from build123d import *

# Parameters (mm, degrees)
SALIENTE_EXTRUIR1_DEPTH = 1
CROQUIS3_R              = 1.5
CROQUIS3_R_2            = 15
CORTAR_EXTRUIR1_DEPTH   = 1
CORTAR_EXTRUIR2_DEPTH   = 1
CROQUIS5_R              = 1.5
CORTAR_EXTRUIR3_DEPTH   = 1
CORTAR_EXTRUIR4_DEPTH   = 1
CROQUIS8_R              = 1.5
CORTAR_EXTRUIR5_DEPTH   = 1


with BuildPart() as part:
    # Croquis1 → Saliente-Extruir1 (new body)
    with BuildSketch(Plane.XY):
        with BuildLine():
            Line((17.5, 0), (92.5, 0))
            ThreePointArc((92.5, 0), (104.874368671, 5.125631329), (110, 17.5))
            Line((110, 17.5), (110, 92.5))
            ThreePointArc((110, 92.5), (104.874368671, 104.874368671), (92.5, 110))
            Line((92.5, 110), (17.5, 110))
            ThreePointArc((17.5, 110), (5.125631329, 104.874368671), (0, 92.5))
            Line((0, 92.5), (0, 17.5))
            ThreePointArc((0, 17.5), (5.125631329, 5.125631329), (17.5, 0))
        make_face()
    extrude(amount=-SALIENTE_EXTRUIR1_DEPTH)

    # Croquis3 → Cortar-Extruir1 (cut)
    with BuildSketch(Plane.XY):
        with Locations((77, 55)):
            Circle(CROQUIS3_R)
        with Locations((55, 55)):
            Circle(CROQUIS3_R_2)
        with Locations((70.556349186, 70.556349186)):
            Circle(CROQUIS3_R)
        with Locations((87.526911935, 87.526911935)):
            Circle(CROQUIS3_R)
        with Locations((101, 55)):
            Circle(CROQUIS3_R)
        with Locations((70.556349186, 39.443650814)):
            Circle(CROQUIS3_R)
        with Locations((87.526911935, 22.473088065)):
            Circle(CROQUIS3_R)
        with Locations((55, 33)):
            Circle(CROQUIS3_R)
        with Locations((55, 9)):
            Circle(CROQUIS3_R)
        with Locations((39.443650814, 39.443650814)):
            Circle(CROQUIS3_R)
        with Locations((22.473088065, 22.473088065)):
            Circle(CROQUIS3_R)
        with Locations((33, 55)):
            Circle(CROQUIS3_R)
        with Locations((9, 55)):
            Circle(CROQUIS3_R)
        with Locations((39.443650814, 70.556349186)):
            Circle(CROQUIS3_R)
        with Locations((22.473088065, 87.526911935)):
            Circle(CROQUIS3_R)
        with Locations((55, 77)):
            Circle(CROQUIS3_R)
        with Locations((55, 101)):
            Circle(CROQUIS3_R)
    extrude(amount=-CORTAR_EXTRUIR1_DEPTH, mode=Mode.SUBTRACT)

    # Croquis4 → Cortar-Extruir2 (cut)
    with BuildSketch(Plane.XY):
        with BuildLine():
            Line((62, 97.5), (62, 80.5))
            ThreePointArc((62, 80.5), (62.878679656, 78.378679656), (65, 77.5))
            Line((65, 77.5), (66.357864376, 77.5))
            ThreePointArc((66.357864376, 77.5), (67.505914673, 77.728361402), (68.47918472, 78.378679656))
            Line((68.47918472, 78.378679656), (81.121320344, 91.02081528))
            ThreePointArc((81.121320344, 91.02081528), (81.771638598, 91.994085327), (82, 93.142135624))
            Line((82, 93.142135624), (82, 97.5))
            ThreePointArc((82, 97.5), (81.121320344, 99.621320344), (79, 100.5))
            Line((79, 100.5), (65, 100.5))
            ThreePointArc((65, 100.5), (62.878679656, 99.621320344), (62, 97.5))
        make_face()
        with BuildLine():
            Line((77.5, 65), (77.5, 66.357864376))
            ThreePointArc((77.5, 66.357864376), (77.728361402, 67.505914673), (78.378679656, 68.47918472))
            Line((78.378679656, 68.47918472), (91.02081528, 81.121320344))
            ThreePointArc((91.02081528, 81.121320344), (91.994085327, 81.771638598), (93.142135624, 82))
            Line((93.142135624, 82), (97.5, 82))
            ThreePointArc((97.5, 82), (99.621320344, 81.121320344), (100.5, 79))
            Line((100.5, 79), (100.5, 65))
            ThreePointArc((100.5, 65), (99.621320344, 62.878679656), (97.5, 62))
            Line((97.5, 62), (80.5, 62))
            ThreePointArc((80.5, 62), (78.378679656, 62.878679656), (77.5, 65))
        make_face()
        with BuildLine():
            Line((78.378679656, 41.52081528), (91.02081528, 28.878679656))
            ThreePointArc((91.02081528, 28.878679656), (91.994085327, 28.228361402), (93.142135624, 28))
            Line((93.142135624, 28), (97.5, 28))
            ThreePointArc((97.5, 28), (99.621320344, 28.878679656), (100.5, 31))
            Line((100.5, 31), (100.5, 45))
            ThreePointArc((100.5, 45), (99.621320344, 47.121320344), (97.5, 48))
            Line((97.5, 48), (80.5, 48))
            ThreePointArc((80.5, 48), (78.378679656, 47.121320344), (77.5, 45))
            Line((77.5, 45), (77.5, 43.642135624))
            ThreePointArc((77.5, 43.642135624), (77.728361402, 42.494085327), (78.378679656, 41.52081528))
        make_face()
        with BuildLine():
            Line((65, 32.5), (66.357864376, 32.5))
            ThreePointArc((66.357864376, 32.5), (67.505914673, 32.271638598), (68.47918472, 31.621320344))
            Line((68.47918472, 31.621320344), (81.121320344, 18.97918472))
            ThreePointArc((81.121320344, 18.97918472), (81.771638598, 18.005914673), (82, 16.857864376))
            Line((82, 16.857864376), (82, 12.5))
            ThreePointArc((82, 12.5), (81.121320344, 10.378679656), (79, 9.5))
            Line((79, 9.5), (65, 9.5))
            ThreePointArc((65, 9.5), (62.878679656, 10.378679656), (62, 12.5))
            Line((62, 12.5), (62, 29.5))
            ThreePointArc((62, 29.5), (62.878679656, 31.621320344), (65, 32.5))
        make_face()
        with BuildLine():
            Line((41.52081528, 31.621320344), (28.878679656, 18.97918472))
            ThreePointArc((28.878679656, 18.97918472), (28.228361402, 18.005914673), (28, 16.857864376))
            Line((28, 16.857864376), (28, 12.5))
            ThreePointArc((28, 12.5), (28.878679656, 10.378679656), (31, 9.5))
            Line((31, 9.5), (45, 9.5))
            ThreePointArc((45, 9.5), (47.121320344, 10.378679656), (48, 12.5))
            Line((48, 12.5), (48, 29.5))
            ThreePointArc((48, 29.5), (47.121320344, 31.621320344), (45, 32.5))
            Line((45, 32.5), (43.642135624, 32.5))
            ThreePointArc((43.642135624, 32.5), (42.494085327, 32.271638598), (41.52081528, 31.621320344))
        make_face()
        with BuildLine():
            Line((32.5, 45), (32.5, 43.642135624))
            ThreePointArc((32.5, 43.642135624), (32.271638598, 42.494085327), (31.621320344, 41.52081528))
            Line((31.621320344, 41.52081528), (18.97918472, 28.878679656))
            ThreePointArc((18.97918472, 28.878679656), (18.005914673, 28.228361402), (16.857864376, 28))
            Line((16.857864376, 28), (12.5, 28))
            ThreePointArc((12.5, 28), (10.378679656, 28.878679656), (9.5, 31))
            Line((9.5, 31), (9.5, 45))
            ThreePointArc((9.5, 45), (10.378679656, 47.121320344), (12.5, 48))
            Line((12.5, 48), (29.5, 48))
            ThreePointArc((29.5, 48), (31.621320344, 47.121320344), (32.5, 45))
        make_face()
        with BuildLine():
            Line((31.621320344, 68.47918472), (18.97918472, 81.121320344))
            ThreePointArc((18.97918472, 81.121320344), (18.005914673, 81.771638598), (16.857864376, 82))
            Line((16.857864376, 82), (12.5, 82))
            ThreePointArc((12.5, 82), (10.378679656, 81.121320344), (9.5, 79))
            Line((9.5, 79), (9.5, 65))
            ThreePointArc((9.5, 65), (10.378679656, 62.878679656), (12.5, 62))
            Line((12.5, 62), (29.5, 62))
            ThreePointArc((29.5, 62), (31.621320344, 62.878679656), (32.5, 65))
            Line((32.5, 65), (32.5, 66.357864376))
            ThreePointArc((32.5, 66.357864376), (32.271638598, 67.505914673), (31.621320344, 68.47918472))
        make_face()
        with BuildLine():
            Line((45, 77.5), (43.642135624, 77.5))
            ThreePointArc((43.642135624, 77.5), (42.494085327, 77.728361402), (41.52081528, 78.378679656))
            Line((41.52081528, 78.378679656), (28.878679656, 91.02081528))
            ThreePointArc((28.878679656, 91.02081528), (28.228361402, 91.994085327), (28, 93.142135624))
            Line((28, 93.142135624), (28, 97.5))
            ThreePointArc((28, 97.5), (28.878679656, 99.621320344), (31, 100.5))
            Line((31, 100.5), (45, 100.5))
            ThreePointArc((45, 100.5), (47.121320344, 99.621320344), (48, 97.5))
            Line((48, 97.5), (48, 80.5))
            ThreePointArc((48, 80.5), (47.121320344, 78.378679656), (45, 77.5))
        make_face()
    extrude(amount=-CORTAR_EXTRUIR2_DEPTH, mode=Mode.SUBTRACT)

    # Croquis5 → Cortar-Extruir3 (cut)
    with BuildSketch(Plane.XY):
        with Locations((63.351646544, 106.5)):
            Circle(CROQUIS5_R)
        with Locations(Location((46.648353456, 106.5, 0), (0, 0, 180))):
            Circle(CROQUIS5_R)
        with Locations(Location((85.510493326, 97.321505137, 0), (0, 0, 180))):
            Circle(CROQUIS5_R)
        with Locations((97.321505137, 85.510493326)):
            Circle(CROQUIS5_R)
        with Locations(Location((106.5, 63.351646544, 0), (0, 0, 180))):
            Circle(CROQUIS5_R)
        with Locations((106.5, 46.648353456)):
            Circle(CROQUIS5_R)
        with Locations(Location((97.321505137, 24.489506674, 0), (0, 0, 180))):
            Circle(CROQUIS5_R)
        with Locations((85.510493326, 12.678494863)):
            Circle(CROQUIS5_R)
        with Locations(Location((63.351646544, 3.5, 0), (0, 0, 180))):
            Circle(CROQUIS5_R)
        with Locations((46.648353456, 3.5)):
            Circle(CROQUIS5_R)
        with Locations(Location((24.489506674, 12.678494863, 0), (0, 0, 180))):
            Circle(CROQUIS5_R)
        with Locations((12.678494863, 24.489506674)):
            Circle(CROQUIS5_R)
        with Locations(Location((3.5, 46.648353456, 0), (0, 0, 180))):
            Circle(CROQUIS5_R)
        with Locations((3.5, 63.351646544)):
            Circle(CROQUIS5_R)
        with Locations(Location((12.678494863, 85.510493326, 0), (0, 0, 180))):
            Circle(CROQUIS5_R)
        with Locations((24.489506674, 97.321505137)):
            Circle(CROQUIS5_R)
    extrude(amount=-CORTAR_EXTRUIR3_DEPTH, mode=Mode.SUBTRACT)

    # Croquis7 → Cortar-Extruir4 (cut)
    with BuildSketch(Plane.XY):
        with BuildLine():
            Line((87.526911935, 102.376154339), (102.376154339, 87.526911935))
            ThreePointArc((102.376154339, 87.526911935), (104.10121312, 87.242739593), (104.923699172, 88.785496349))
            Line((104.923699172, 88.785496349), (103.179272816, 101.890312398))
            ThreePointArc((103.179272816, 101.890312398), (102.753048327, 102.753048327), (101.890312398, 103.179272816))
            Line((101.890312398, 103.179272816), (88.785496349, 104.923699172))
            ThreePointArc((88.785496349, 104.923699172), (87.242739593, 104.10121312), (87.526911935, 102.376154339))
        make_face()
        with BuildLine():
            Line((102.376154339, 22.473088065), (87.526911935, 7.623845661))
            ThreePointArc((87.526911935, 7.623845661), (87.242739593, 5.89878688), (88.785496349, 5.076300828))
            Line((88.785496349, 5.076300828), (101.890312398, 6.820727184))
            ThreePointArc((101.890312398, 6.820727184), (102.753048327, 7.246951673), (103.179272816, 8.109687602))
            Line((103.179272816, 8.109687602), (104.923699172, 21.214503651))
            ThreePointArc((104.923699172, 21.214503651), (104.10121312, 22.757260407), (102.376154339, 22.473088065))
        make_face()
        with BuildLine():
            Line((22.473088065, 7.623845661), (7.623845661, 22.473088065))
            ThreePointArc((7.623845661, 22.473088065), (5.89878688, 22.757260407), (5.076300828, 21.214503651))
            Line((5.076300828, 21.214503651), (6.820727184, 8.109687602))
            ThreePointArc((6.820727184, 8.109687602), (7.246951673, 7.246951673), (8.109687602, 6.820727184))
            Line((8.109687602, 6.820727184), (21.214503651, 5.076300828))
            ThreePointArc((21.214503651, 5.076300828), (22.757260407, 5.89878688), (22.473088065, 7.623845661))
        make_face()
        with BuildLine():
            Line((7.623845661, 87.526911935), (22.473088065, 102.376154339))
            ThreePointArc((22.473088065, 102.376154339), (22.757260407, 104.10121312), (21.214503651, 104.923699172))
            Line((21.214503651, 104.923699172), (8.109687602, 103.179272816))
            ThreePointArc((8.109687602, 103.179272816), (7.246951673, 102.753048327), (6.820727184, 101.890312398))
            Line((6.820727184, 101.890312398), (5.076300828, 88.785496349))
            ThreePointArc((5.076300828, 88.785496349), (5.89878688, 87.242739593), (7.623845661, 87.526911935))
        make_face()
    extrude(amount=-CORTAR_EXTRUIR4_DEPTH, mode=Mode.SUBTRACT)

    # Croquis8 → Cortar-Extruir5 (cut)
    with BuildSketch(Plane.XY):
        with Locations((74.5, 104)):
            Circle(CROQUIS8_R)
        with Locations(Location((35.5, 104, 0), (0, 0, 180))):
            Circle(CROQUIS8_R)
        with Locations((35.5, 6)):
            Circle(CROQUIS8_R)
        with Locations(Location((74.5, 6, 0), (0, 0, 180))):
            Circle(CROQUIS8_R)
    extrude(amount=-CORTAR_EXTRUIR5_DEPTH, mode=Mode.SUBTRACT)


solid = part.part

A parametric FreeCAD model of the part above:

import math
import FreeCAD as App
import Part
import Sketcher
Q = App.Units.Quantity

doc = App.newDocument("Part")
body = doc.addObject("PartDesign::Body", "Body")

sketch1 = body.newObject("Sketcher::SketchObject", "Sketch")
sketch1.AttachmentSupport = (doc.getObject("XY_Plane"), [""])
sketch1.MapMode = "FlatFace"
sketch1.addGeometry([
    Part.LineSegment(App.Vector(18, 0, 0), App.Vector(92, 0, 0)),
    Part.ArcOfCircle(Part.Circle(App.Vector(93, 17, 0), App.Vector(0, 0, 1), 17), math.radians(-90), math.radians(0)),
    Part.LineSegment(App.Vector(110, 18, 0), App.Vector(110, 92, 0)),
    Part.ArcOfCircle(Part.Circle(App.Vector(93, 93, 0), App.Vector(0, 0, 1), 17), math.radians(0), math.radians(90)),
    Part.LineSegment(App.Vector(92, 110, 0), App.Vector(18, 110, 0)),
    Part.ArcOfCircle(Part.Circle(App.Vector(17, 93, 0), App.Vector(0, 0, 1), 17), math.radians(90), math.radians(180)),
    Part.LineSegment(App.Vector(0, 92, 0), App.Vector(0, 18, 0)),
    Part.ArcOfCircle(Part.Circle(App.Vector(17, 17, 0), App.Vector(0, 0, 1), 17), math.radians(180), math.radians(270)),
], False)
sketch1.addConstraint([
    Sketcher.Constraint("Tangent", 0, 2, 1, 1),
    Sketcher.Constraint("Tangent", 1, 2, 2, 1),
    Sketcher.Constraint("Tangent", 2, 2, 3, 1),
    Sketcher.Constraint("Tangent", 3, 2, 4, 1),
    Sketcher.Constraint("Tangent", 4, 2, 5, 1),
    Sketcher.Constraint("Tangent", 5, 2, 6, 1),
    Sketcher.Constraint("Tangent", 6, 2, 7, 1),
    Sketcher.Constraint("Tangent", 7, 2, 0, 1),
    Sketcher.Constraint("Horizontal", 0),
    Sketcher.Constraint("Vertical", 2),
    Sketcher.Constraint("Horizontal", 4),
    Sketcher.Constraint("Vertical", 6),
    Sketcher.Constraint("Equal", 1, 3),
    Sketcher.Constraint("Equal", 3, 5),
    Sketcher.Constraint("Equal", 5, 7),
    Sketcher.Constraint("PointOnObject", 0, 2, -1),
    Sketcher.Constraint("PointOnObject", 5, 2, -2),
    Sketcher.Constraint("Equal", 4, 2),
    Sketcher.Constraint("Radius", 1, Q("17.5 mm")),
    Sketcher.Constraint("DistanceX", 0, 1, 0, 2, Q("75 mm")),
])
pad1 = body.newObject("PartDesign::Pad", "Pad")
pad1.Profile = sketch1
pad1.Length = 1
pad1.Reversed = True

sketch2 = body.newObject("Sketcher::SketchObject", "Sketch001")
sketch2.AttachmentSupport = (doc.getObject("XY_Plane"), [""])
sketch2.MapMode = "FlatFace"
sketch2.addGeometry([
    Part.Circle(App.Vector(77, 55, 0), App.Vector(0, 0, 1), 1.5),
    Part.Circle(App.Vector(55, 55, 0), App.Vector(0, 0, 1), 15),
    Part.Circle(App.Vector(70.6, 70.6, 0), App.Vector(0, 0, 1), 1.5),
    Part.Circle(App.Vector(87.5, 87.5, 0), App.Vector(0, 0, 1), 1.5),
    Part.Circle(App.Vector(101, 55, 0), App.Vector(0, 0, 1), 1.5),
    Part.Circle(App.Vector(70.6, 39.4, 0), App.Vector(0, 0, 1), 1.5),
    Part.Circle(App.Vector(87.5, 22.5, 0), App.Vector(0, 0, 1), 1.5),
    Part.Circle(App.Vector(55, 33, 0), App.Vector(0, 0, 1), 1.5),
    Part.Circle(App.Vector(55, 9, 0), App.Vector(0, 0, 1), 1.5),
    Part.Circle(App.Vector(39.4, 39.4, 0), App.Vector(0, 0, 1), 1.5),
    Part.Circle(App.Vector(22.5, 22.5, 0), App.Vector(0, 0, 1), 1.5),
    Part.Circle(App.Vector(33, 55, 0), App.Vector(0, 0, 1), 1.5),
    Part.Circle(App.Vector(9, 55, 0), App.Vector(0, 0, 1), 1.5),
    Part.Circle(App.Vector(39.4, 70.6, 0), App.Vector(0, 0, 1), 1.5),
    Part.Circle(App.Vector(22.5, 87.5, 0), App.Vector(0, 0, 1), 1.5),
    Part.Circle(App.Vector(55, 77, 0), App.Vector(0, 0, 1), 1.5),
    Part.Circle(App.Vector(55, 101, 0), App.Vector(0, 0, 1), 1.5),
], False)
sketch2.addConstraint([
    Sketcher.Constraint("Equal", 0, 2),
    Sketcher.Constraint("Equal", 2, 3),
    Sketcher.Constraint("Equal", 3, 4),
    Sketcher.Constraint("Equal", 4, 5),
    Sketcher.Constraint("Equal", 5, 6),
    Sketcher.Constraint("Equal", 6, 7),
    Sketcher.Constraint("Equal", 7, 8),
    Sketcher.Constraint("Equal", 8, 9),
    Sketcher.Constraint("Equal", 9, 10),
    Sketcher.Constraint("Equal", 10, 11),
    Sketcher.Constraint("Equal", 11, 12),
    Sketcher.Constraint("Equal", 12, 13),
    Sketcher.Constraint("Equal", 13, 14),
    Sketcher.Constraint("Equal", 14, 15),
    Sketcher.Constraint("Equal", 15, 16),
    Sketcher.Constraint("Horizontal", 0, 3, 1, 3),
    Sketcher.Constraint("Horizontal", 1, 3, 4, 3),
    Sketcher.Constraint("Horizontal", 5, 3, 9, 3),
    Sketcher.Constraint("Horizontal", 6, 3, 10, 3),
    Sketcher.Constraint("Horizontal", 4, 3, 11, 3),
    Sketcher.Constraint("Horizontal", 11, 3, 12, 3),
    Sketcher.Constraint("Horizontal", 2, 3, 13, 3),
    Sketcher.Constraint("Horizontal", 3, 3, 14, 3),
    Sketcher.Constraint("Vertical", 2, 3, 5, 3),
    Sketcher.Constraint("Vertical", 3, 3, 6, 3),
    Sketcher.Constraint("Vertical", 1, 3, 7, 3),
    Sketcher.Constraint("Vertical", 7, 3, 8, 3),
    Sketcher.Constraint("Vertical", 9, 3, 13, 3),
    Sketcher.Constraint("Vertical", 10, 3, 14, 3),
    Sketcher.Constraint("Vertical", 8, 3, 15, 3),
    Sketcher.Constraint("Vertical", 15, 3, 16, 3),
    Sketcher.Constraint("Diameter", 0, Q("3 mm")),
    Sketcher.Constraint("Diameter", 1, Q("30 mm")),
    Sketcher.Constraint("DistanceX", -1, 1, 0, 3, Q("77 mm")),
    Sketcher.Constraint("DistanceY", -1, 1, 0, 3, Q("55 mm")),
    Sketcher.Constraint("DistanceX", -1, 1, 1, 3, Q("55 mm")),
    Sketcher.Constraint("DistanceX", -1, 1, 4, 3, Q("101 mm")),
    Sketcher.Constraint("DistanceY", -1, 1, 7, 3, Q("33 mm")),
    Sketcher.Constraint("DistanceY", -1, 1, 8, 3, Q("9 mm")),
    Sketcher.Constraint("DistanceX", -1, 1, 11, 3, Q("33 mm")),
    Sketcher.Constraint("DistanceX", -1, 1, 12, 3, Q("9 mm")),
    Sketcher.Constraint("DistanceY", -1, 1, 15, 3, Q("77 mm")),
    Sketcher.Constraint("DistanceY", -1, 1, 16, 3, Q("101 mm")),
    Sketcher.Constraint("DistanceY", 5, 3, 2, 3, Q("31.112698 mm")),
    Sketcher.Constraint("DistanceX", 9, 3, 5, 3, Q("31.112698 mm")),
    Sketcher.Constraint("DistanceX", -1, 1, 2, 3, Q("70.556349 mm")),
    Sketcher.Constraint("DistanceY", -1, 1, 2, 3, Q("70.556349 mm")),
    Sketcher.Constraint("DistanceX", -1, 1, 3, 3, Q("87.526912 mm")),
    Sketcher.Constraint("DistanceY", -1, 1, 3, 3, Q("87.526912 mm")),
    Sketcher.Constraint("DistanceY", -1, 1, 6, 3, Q("22.473088 mm")),
    Sketcher.Constraint("DistanceX", -1, 1, 10, 3, Q("22.473088 mm")),
])
pocket1 = body.newObject("PartDesign::Pocket", "Pocket")
pocket1.Profile = sketch2
pocket1.Length = 1

sketch3 = body.newObject("Sketcher::SketchObject", "Sketch002")
sketch3.AttachmentSupport = (doc.getObject("XY_Plane"), [""])
sketch3.MapMode = "FlatFace"
sketch3.addGeometry([
    Part.LineSegment(App.Vector(62, 97.5, 0), App.Vector(62, 80.5, 0)),
    Part.ArcOfCircle(Part.Circle(App.Vector(65, 80.5, 0), App.Vector(0, 0, 1), 3), math.radians(180), math.radians(270)),
    Part.LineSegment(App.Vector(65, 77.5, 0), App.Vector(66.4, 77.5, 0)),
    Part.ArcOfCircle(Part.Circle(App.Vector(66.4, 80.5, 0), App.Vector(0, 0, 1), 3), math.radians(-90), math.radians(-45)),
    Part.LineSegment(App.Vector(68.5, 78.4, 0), App.Vector(81.1, 91, 0)),
    Part.ArcOfCircle(Part.Circle(App.Vector(79, 93.1, 0), App.Vector(0, 0, 1), 3), math.radians(-45), math.radians(0)),
    Part.LineSegment(App.Vector(82, 93.1, 0), App.Vector(82, 97.5, 0)),
    Part.ArcOfCircle(Part.Circle(App.Vector(79, 97.5, 0), App.Vector(0, 0, 1), 3), math.radians(0), math.radians(90)),
    Part.LineSegment(App.Vector(79, 100.5, 0), App.Vector(65, 100.5, 0)),
    Part.ArcOfCircle(Part.Circle(App.Vector(65, 97.5, 0), App.Vector(0, 0, 1), 3), math.radians(90), math.radians(180)),
    Part.LineSegment(App.Vector(77.5, 66.4, 0), App.Vector(77.5, 65, 0)),
    Part.ArcOfCircle(Part.Circle(App.Vector(80.5, 65, 0), App.Vector(0, 0, 1), 3), math.radians(180), math.radians(270)),
    Part.LineSegment(App.Vector(80.5, 62, 0), App.Vector(97.5, 62, 0)),
    Part.ArcOfCircle(Part.Circle(App.Vector(97.5, 65, 0), App.Vector(0, 0, 1), 3), math.radians(-90), math.radians(0)),
    Part.LineSegment(App.Vector(100.5, 65, 0), App.Vector(100.5, 79, 0)),
    Part.ArcOfCircle(Part.Circle(App.Vector(97.5, 79, 0), App.Vector(0, 0, 1), 3), math.radians(0), math.radians(90)),
    Part.LineSegment(App.Vector(97.5, 82, 0), App.Vector(93.1, 82, 0)),
    Part.ArcOfCircle(Part.Circle(App.Vector(93.1, 79, 0), App.Vector(0, 0, 1), 3), math.radians(90), math.radians(135)),
    Part.LineSegment(App.Vector(91, 81.1, 0), App.Vector(78.4, 68.5, 0)),
    Part.ArcOfCircle(Part.Circle(App.Vector(80.5, 66.4, 0), App.Vector(0, 0, 1), 3), math.radians(135), math.radians(180)),
    Part.LineSegment(App.Vector(78.4, 41.5, 0), App.Vector(91, 28.9, 0)),
    Part.ArcOfCircle(Part.Circle(App.Vector(93.1, 31, 0), App.Vector(0, 0, 1), 3), math.radians(-135), math.radians(-90)),
    Part.LineSegment(App.Vector(93.1, 28, 0), App.Vector(97.5, 28, 0)),
    Part.ArcOfCircle(Part.Circle(App.Vector(97.5, 31, 0), App.Vector(0, 0, 1), 3), math.radians(-90), math.radians(0)),
    Part.LineSegment(App.Vector(100.5, 31, 0), App.Vector(100.5, 45, 0)),
    Part.ArcOfCircle(Part.Circle(App.Vector(97.5, 45, 0), App.Vector(0, 0, 1), 3), math.radians(0), math.radians(90)),
    Part.LineSegment(App.Vector(97.5, 48, 0), App.Vector(80.5, 48, 0)),
    Part.ArcOfCircle(Part.Circle(App.Vector(80.5, 45, 0), App.Vector(0, 0, 1), 3), math.radians(90), math.radians(180)),
    Part.LineSegment(App.Vector(77.5, 45, 0), App.Vector(77.5, 43.6, 0)),
    Part.ArcOfCircle(Part.Circle(App.Vector(80.5, 43.6, 0), App.Vector(0, 0, 1), 3), math.radians(180), math.radians(225)),
    Part.LineSegment(App.Vector(66.4, 32.5, 0), App.Vector(65, 32.5, 0)),
    Part.ArcOfCircle(Part.Circle(App.Vector(65, 29.5, 0), App.Vector(0, 0, 1), 3), math.radians(90), math.radians(180)),
    Part.LineSegment(App.Vector(62, 29.5, 0), App.Vector(62, 12.5, 0)),
    Part.ArcOfCircle(Part.Circle(App.Vector(65, 12.5, 0), App.Vector(0, 0, 1), 3), math.radians(180), math.radians(270)),
    Part.LineSegment(App.Vector(65, 9.5, 0), App.Vector(79, 9.5, 0)),
    Part.ArcOfCircle(Part.Circle(App.Vector(79, 12.5, 0), App.Vector(0, 0, 1), 3), math.radians(-90), math.radians(0)),
    Part.LineSegment(App.Vector(82, 12.5, 0), App.Vector(82, 16.9, 0)),
    Part.ArcOfCircle(Part.Circle(App.Vector(79, 16.9, 0), App.Vector(0, 0, 1), 3), math.radians(0), math.radians(45)),
    Part.LineSegment(App.Vector(81.1, 19, 0), App.Vector(68.5, 31.6, 0)),
    Part.ArcOfCircle(Part.Circle(App.Vector(66.4, 29.5, 0), App.Vector(0, 0, 1), 3), math.radians(45), math.radians(90)),
    Part.LineSegment(App.Vector(41.5, 31.6, 0), App.Vector(28.9, 19, 0)),
    Part.ArcOfCircle(Part.Circle(App.Vector(31, 16.9, 0), App.Vector(0, 0, 1), 3), math.radians(135), math.radians(180)),
    Part.LineSegment(App.Vector(28, 16.9, 0), App.Vector(28, 12.5, 0)),
    Part.ArcOfCircle(Part.Circle(App.Vector(31, 12.5, 0), App.Vector(0, 0, 1), 3), math.radians(180), math.radians(270)),
    Part.LineSegment(App.Vector(31, 9.5, 0), App.Vector(45, 9.5, 0)),
    Part.ArcOfCircle(Part.Circle(App.Vector(45, 12.5, 0), App.Vector(0, 0, 1), 3), math.radians(-90), math.radians(0)),
    Part.LineSegment(App.Vector(48, 12.5, 0), App.Vector(48, 29.5, 0)),
    Part.ArcOfCircle(Part.Circle(App.Vector(45, 29.5, 0), App.Vector(0, 0, 1), 3), math.radians(0), math.radians(90)),
    Part.LineSegment(App.Vector(45, 32.5, 0), App.Vector(43.6, 32.5, 0)),
    Part.ArcOfCircle(Part.Circle(App.Vector(43.6, 29.5, 0), App.Vector(0, 0, 1), 3), math.radians(90), math.radians(135)),
    Part.LineSegment(App.Vector(32.5, 43.6, 0), App.Vector(32.5, 45, 0)),
    Part.ArcOfCircle(Part.Circle(App.Vector(29.5, 45, 0), App.Vector(0, 0, 1), 3), math.radians(0), math.radians(90)),
    Part.LineSegment(App.Vector(29.5, 48, 0), App.Vector(12.5, 48, 0)),
    Part.ArcOfCircle(Part.Circle(App.Vector(12.5, 45, 0), App.Vector(0, 0, 1), 3), math.radians(90), math.radians(180)),
    Part.LineSegment(App.Vector(9.5, 45, 0), App.Vector(9.5, 31, 0)),
    Part.ArcOfCircle(Part.Circle(App.Vector(12.5, 31, 0), App.Vector(0, 0, 1), 3), math.radians(180), math.radians(270)),
    Part.LineSegment(App.Vector(12.5, 28, 0), App.Vector(16.9, 28, 0)),
    Part.ArcOfCircle(Part.Circle(App.Vector(16.9, 31, 0), App.Vector(0, 0, 1), 3), math.radians(-90), math.radians(-45)),
    Part.LineSegment(App.Vector(19, 28.9, 0), App.Vector(31.6, 41.5, 0)),
    Part.ArcOfCircle(Part.Circle(App.Vector(29.5, 43.6, 0), App.Vector(0, 0, 1), 3), math.radians(-45), math.radians(0)),
    Part.LineSegment(App.Vector(31.6, 68.5, 0), App.Vector(19, 81.1, 0)),
    Part.ArcOfCircle(Part.Circle(App.Vector(16.9, 79, 0), App.Vector(0, 0, 1), 3), math.radians(45), math.radians(90)),
    Part.LineSegment(App.Vector(16.9, 82, 0), App.Vector(12.5, 82, 0)),
    Part.ArcOfCircle(Part.Circle(App.Vector(12.5, 79, 0), App.Vector(0, 0, 1), 3), math.radians(90), math.radians(180)),
    Part.LineSegment(App.Vector(9.5, 79, 0), App.Vector(9.5, 65, 0)),
    Part.ArcOfCircle(Part.Circle(App.Vector(12.5, 65, 0), App.Vector(0, 0, 1), 3), math.radians(180), math.radians(270)),
    Part.LineSegment(App.Vector(12.5, 62, 0), App.Vector(29.5, 62, 0)),
    Part.ArcOfCircle(Part.Circle(App.Vector(29.5, 65, 0), App.Vector(0, 0, 1), 3), math.radians(-90), math.radians(0)),
    Part.LineSegment(App.Vector(32.5, 65, 0), App.Vector(32.5, 66.4, 0)),
    Part.ArcOfCircle(Part.Circle(App.Vector(29.5, 66.4, 0), App.Vector(0, 0, 1), 3), math.radians(0), math.radians(45)),
    Part.LineSegment(App.Vector(43.6, 77.5, 0), App.Vector(45, 77.5, 0)),
    Part.ArcOfCircle(Part.Circle(App.Vector(45, 80.5, 0), App.Vector(0, 0, 1), 3), math.radians(-90), math.radians(0)),
    Part.LineSegment(App.Vector(48, 80.5, 0), App.Vector(48, 97.5, 0)),
    Part.ArcOfCircle(Part.Circle(App.Vector(45, 97.5, 0), App.Vector(0, 0, 1), 3), math.radians(0), math.radians(90)),
    Part.LineSegment(App.Vector(45, 100.5, 0), App.Vector(31, 100.5, 0)),
    Part.ArcOfCircle(Part.Circle(App.Vector(31, 97.5, 0), App.Vector(0, 0, 1), 3), math.radians(90), math.radians(180)),
    Part.LineSegment(App.Vector(28, 97.5, 0), App.Vector(28, 93.1, 0)),
    Part.ArcOfCircle(Part.Circle(App.Vector(31, 93.1, 0), App.Vector(0, 0, 1), 3), math.radians(180), math.radians(225)),
    Part.LineSegment(App.Vector(28.9, 91, 0), App.Vector(41.5, 78.4, 0)),
    Part.ArcOfCircle(Part.Circle(App.Vector(43.6, 80.5, 0), App.Vector(0, 0, 1), 3), math.radians(-135), math.radians(-90)),
], False)
sketch3.addConstraint([
    Sketcher.Constraint("Tangent", 0, 2, 1, 1),
    Sketcher.Constraint("Tangent", 1, 2, 2, 1),
    Sketcher.Constraint("Tangent", 2, 2, 3, 1),
    Sketcher.Constraint("Tangent", 3, 2, 4, 1),
    Sketcher.Constraint("Tangent", 4, 2, 5, 1),
    Sketcher.Constraint("Tangent", 5, 2, 6, 1),
    Sketcher.Constraint("Tangent", 6, 2, 7, 1),
    Sketcher.Constraint("Tangent", 7, 2, 8, 1),
    Sketcher.Constraint("Tangent", 8, 2, 9, 1),
    Sketcher.Constraint("Tangent", 9, 2, 0, 1),
    Sketcher.Constraint("Tangent", 10, 2, 11, 1),
    Sketcher.Constraint("Tangent", 11, 2, 12, 1),
    Sketcher.Constraint("Tangent", 12, 2, 13, 1),
    Sketcher.Constraint("Tangent", 13, 2, 14, 1),
    Sketcher.Constraint("Tangent", 14, 2, 15, 1),
    Sketcher.Constraint("Tangent", 15, 2, 16, 1),
    Sketcher.Constraint("Tangent", 16, 2, 17, 1),
    Sketcher.Constraint("Tangent", 17, 2, 18, 1),
    Sketcher.Constraint("Tangent", 18, 2, 19, 1),
    Sketcher.Constraint("Tangent", 19, 2, 10, 1),
    Sketcher.Constraint("Tangent", 20, 2, 21, 1),
    Sketcher.Constraint("Tangent", 21, 2, 22, 1),
    Sketcher.Constraint("Tangent", 22, 2, 23, 1),
    Sketcher.Constraint("Tangent", 23, 2, 24, 1),
    Sketcher.Constraint("Tangent", 24, 2, 25, 1),
    Sketcher.Constraint("Tangent", 25, 2, 26, 1),
    Sketcher.Constraint("Tangent", 26, 2, 27, 1),
    Sketcher.Constraint("Tangent", 27, 2, 28, 1),
    Sketcher.Constraint("Tangent", 28, 2, 29, 1),
    Sketcher.Constraint("Tangent", 29, 2, 20, 1),
    Sketcher.Constraint("Tangent", 30, 2, 31, 1),
    Sketcher.Constraint("Tangent", 31, 2, 32, 1),
    Sketcher.Constraint("Tangent", 32, 2, 33, 1),
    Sketcher.Constraint("Tangent", 33, 2, 34, 1),
    Sketcher.Constraint("Tangent", 34, 2, 35, 1),
    Sketcher.Constraint("Tangent", 35, 2, 36, 1),
    Sketcher.Constraint("Tangent", 36, 2, 37, 1),
    Sketcher.Constraint("Tangent", 37, 2, 38, 1),
    Sketcher.Constraint("Tangent", 38, 2, 39, 1),
    Sketcher.Constraint("Tangent", 39, 2, 30, 1),
    Sketcher.Constraint("Tangent", 40, 2, 41, 1),
    Sketcher.Constraint("Tangent", 41, 2, 42, 1),
    Sketcher.Constraint("Tangent", 42, 2, 43, 1),
    Sketcher.Constraint("Tangent", 43, 2, 44, 1),
    Sketcher.Constraint("Tangent", 44, 2, 45, 1),
    Sketcher.Constraint("Tangent", 45, 2, 46, 1),
    Sketcher.Constraint("Tangent", 46, 2, 47, 1),
    Sketcher.Constraint("Tangent", 47, 2, 48, 1),
    Sketcher.Constraint("Tangent", 48, 2, 49, 1),
    Sketcher.Constraint("Tangent", 49, 2, 40, 1),
    Sketcher.Constraint("Tangent", 50, 2, 51, 1),
    Sketcher.Constraint("Tangent", 51, 2, 52, 1),
    Sketcher.Constraint("Tangent", 52, 2, 53, 1),
    Sketcher.Constraint("Tangent", 53, 2, 54, 1),
    Sketcher.Constraint("Tangent", 54, 2, 55, 1),
    Sketcher.Constraint("Tangent", 55, 2, 56, 1),
    Sketcher.Constraint("Tangent", 56, 2, 57, 1),
    Sketcher.Constraint("Tangent", 57, 2, 58, 1),
    Sketcher.Constraint("Tangent", 58, 2, 59, 1),
    Sketcher.Constraint("Tangent", 59, 2, 50, 1),
    Sketcher.Constraint("Tangent", 60, 2, 61, 1),
    Sketcher.Constraint("Tangent", 61, 2, 62, 1),
    Sketcher.Constraint("Tangent", 62, 2, 63, 1),
    Sketcher.Constraint("Tangent", 63, 2, 64, 1),
    Sketcher.Constraint("Tangent", 64, 2, 65, 1),
    Sketcher.Constraint("Tangent", 65, 2, 66, 1),
    Sketcher.Constraint("Tangent", 66, 2, 67, 1),
    Sketcher.Constraint("Tangent", 67, 2, 68, 1),
    Sketcher.Constraint("Tangent", 68, 2, 69, 1),
    Sketcher.Constraint("Tangent", 69, 2, 60, 1),
    Sketcher.Constraint("Tangent", 70, 2, 71, 1),
    Sketcher.Constraint("Tangent", 71, 2, 72, 1),
    Sketcher.Constraint("Tangent", 72, 2, 73, 1),
    Sketcher.Constraint("Tangent", 73, 2, 74, 1),
    Sketcher.Constraint("Tangent", 74, 2, 75, 1),
    Sketcher.Constraint("Tangent", 75, 2, 76, 1),
    Sketcher.Constraint("Tangent", 76, 2, 77, 1),
    Sketcher.Constraint("Tangent", 77, 2, 78, 1),
    Sketcher.Constraint("Tangent", 78, 2, 79, 1),
    Sketcher.Constraint("Tangent", 79, 2, 70, 1),
    Sketcher.Constraint("Vertical", 0),
    Sketcher.Constraint("Horizontal", 2),
    Sketcher.Constraint("Vertical", 6),
    Sketcher.Constraint("Horizontal", 8),
    Sketcher.Constraint("Vertical", 10),
    Sketcher.Constraint("Horizontal", 12),
    Sketcher.Constraint("Vertical", 14),
    Sketcher.Constraint("Horizontal", 16),
    Sketcher.Constraint("Horizontal", 22),
    Sketcher.Constraint("Vertical", 24),
    Sketcher.Constraint("Horizontal", 26),
    Sketcher.Constraint("Vertical", 28),
    Sketcher.Constraint("Horizontal", 30),
    Sketcher.Constraint("Vertical", 32),
    Sketcher.Constraint("Horizontal", 34),
    Sketcher.Constraint("Vertical", 36),
    Sketcher.Constraint("Vertical", 42),
    Sketcher.Constraint("Horizontal", 44),
    Sketcher.Constraint("Vertical", 46),
    Sketcher.Constraint("Horizontal", 48),
    Sketcher.Constraint("Vertical", 50),
    Sketcher.Constraint("Horizontal", 52),
    Sketcher.Constraint("Vertical", 54),
    Sketcher.Constraint("Horizontal", 56),
    Sketcher.Constraint("Horizontal", 62),
    Sketcher.Constraint("Vertical", 64),
    Sketcher.Constraint("Horizontal", 66),
    Sketcher.Constraint("Vertical", 68),
    Sketcher.Constraint("Horizontal", 70),
    Sketcher.Constraint("Vertical", 72),
    Sketcher.Constraint("Horizontal", 74),
    Sketcher.Constraint("Vertical", 76),
    Sketcher.Constraint("Equal", 1, 3),
    Sketcher.Constraint("Equal", 3, 5),
    Sketcher.Constraint("Equal", 5, 7),
    Sketcher.Constraint("Equal", 7, 9),
    Sketcher.Constraint("Equal", 9, 11),
    Sketcher.Constraint("Equal", 11, 13),
    Sketcher.Constraint("Equal", 13, 15),
    Sketcher.Constraint("Equal", 15, 17),
    Sketcher.Constraint("Equal", 17, 19),
    Sketcher.Constraint("Equal", 19, 21),
    Sketcher.Constraint("Equal", 21, 23),
    Sketcher.Constraint("Equal", 23, 25),
    Sketcher.Constraint("Equal", 25, 27),
    Sketcher.Constraint("Equal", 27, 29),
    Sketcher.Constraint("Equal", 29, 31),
    Sketcher.Constraint("Equal", 31, 33),
    Sketcher.Constraint("Equal", 33, 35),
    Sketcher.Constraint("Equal", 35, 37),
    Sketcher.Constraint("Equal", 37, 39),
    Sketcher.Constraint("Equal", 39, 41),
    Sketcher.Constraint("Equal", 41, 43),
    Sketcher.Constraint("Equal", 43, 45),
    Sketcher.Constraint("Equal", 45, 47),
    Sketcher.Constraint("Equal", 47, 49),
    Sketcher.Constraint("Equal", 49, 51),
    Sketcher.Constraint("Equal", 51, 53),
    Sketcher.Constraint("Equal", 53, 55),
    Sketcher.Constraint("Equal", 55, 57),
    Sketcher.Constraint("Equal", 57, 59),
    Sketcher.Constraint("Equal", 59, 61),
    Sketcher.Constraint("Equal", 61, 63),
    Sketcher.Constraint("Equal", 63, 65),
    Sketcher.Constraint("Equal", 65, 67),
    Sketcher.Constraint("Equal", 67, 69),
    Sketcher.Constraint("Equal", 69, 71),
    Sketcher.Constraint("Equal", 71, 73),
    Sketcher.Constraint("Equal", 73, 75),
    Sketcher.Constraint("Equal", 75, 77),
    Sketcher.Constraint("Equal", 77, 79),
    Sketcher.Constraint("Parallel", 4, 18),
    Sketcher.Constraint("Perpendicular", 18, 20),
    Sketcher.Constraint("Parallel", 20, 38),
    Sketcher.Constraint("Perpendicular", 38, 40),
    Sketcher.Constraint("Parallel", 40, 58),
    Sketcher.Constraint("Perpendicular", 58, 60),
    Sketcher.Constraint("Parallel", 60, 78),
    Sketcher.Constraint("Horizontal", 37, 3, 41, 3),
    Sketcher.Constraint("Horizontal", 35, 3, 43, 3),
    Sketcher.Constraint("Horizontal", 39, 3, 47, 3),
    Sketcher.Constraint("Horizontal", 27, 3, 51, 3),
    Sketcher.Constraint("Horizontal", 23, 3, 55, 3),
    Sketcher.Constraint("Horizontal", 29, 3, 59, 3),
    Sketcher.Constraint("Horizontal", 17, 3, 61, 3),
    Sketcher.Constraint("Horizontal", 13, 3, 65, 3),
    Sketcher.Constraint("Horizontal", 19, 3, 69, 3),
    Sketcher.Constraint("Horizontal", 3, 3, 71, 3),
    Sketcher.Constraint("Horizontal", 9, 3, 73, 3),
    Sketcher.Constraint("Horizontal", 5, 3, 77, 3),
    Sketcher.Constraint("Horizontal", 37, 2, 40, 2),
    Sketcher.Constraint("Vertical", 17, 3, 21, 3),
    Sketcher.Constraint("Vertical", 15, 3, 23, 3),
    Sketcher.Constraint("Vertical", 19, 3, 27, 3),
    Sketcher.Constraint("Vertical", 9, 3, 31, 3),
    Sketcher.Constraint("Vertical", 7, 3, 35, 3),
    Sketcher.Constraint("Vertical", 3, 3, 39, 3),
    Sketcher.Constraint("Vertical", 57, 3, 61, 3),
    Sketcher.Constraint("Vertical", 55, 3, 63, 3),
    Sketcher.Constraint("Vertical", 47, 3, 71, 3),
    Sketcher.Constraint("Vertical", 43, 3, 75, 3),
    Sketcher.Constraint("Equal", 34, 44),
    Sketcher.Constraint("Equal", 26, 52),
    Sketcher.Constraint("Equal", 66, 0),
    Sketcher.Constraint("Equal", 62, 6),
    Sketcher.Constraint("Equal", 70, 10),
    Sketcher.Constraint("Equal", 14, 24),
    Sketcher.Constraint("Equal", 0, 32),
    Sketcher.Constraint("Radius", 1, Q("3 mm")),
    Sketcher.Constraint("DistanceX", 8, 2, 8, 1, Q("14 mm")),
    Sketcher.Constraint("DistanceX", 12, 1, 12, 2, Q("17 mm")),
    Sketcher.Constraint("DistanceX", -1, 1, 1, 3, Q("65 mm")),
    Sketcher.Constraint("DistanceY", -1, 1, 11, 3, Q("65 mm")),
    Sketcher.Constraint("DistanceY", -1, 1, 21, 3, Q("31 mm")),
    Sketcher.Constraint("DistanceX", -1, 1, 41, 3, Q("31 mm")),
    Sketcher.Constraint("DistanceY", -1, 1, 1, 3, Q("80.5 mm")),
    Sketcher.Constraint("DistanceX", -1, 1, 11, 3, Q("80.5 mm")),
    Sketcher.Constraint("DistanceY", -1, 1, 31, 3, Q("29.5 mm")),
    Sketcher.Constraint("DistanceX", -1, 1, 51, 3, Q("29.5 mm")),
    Sketcher.Constraint("Distance", 4, Q("17.87868 mm")),
])
pocket2 = body.newObject("PartDesign::Pocket", "Pocket001")
pocket2.Profile = sketch3
pocket2.Length = 1

sketch4 = body.newObject("Sketcher::SketchObject", "Sketch003")
sketch4.AttachmentSupport = (doc.getObject("XY_Plane"), [""])
sketch4.MapMode = "FlatFace"
sketch4.addGeometry([
    Part.Circle(App.Vector(63.4, 106.5, 0), App.Vector(0, 0, 1), 1.5),
    Part.Circle(App.Vector(46.6, 106.5, 0), App.Vector(0, 0, 1), 1.5),
    Part.Circle(App.Vector(85.5, 97.3, 0), App.Vector(0, 0, 1), 1.5),
    Part.Circle(App.Vector(97.3, 85.5, 0), App.Vector(0, 0, 1), 1.5),
    Part.Circle(App.Vector(106.5, 63.4, 0), App.Vector(0, 0, 1), 1.5),
    Part.Circle(App.Vector(106.5, 46.6, 0), App.Vector(0, 0, 1), 1.5),
    Part.Circle(App.Vector(97.3, 24.5, 0), App.Vector(0, 0, 1), 1.5),
    Part.Circle(App.Vector(85.5, 12.7, 0), App.Vector(0, 0, 1), 1.5),
    Part.Circle(App.Vector(63.4, 3.5, 0), App.Vector(0, 0, 1), 1.5),
    Part.Circle(App.Vector(46.6, 3.5, 0), App.Vector(0, 0, 1), 1.5),
    Part.Circle(App.Vector(24.5, 12.7, 0), App.Vector(0, 0, 1), 1.5),
    Part.Circle(App.Vector(12.7, 24.5, 0), App.Vector(0, 0, 1), 1.5),
    Part.Circle(App.Vector(3.5, 46.6, 0), App.Vector(0, 0, 1), 1.5),
    Part.Circle(App.Vector(3.5, 63.4, 0), App.Vector(0, 0, 1), 1.5),
    Part.Circle(App.Vector(12.7, 85.5, 0), App.Vector(0, 0, 1), 1.5),
    Part.Circle(App.Vector(24.5, 97.3, 0), App.Vector(0, 0, 1), 1.5),
], False)
sketch4.addConstraint([
    Sketcher.Constraint("Equal", 0, 1),
    Sketcher.Constraint("Equal", 1, 2),
    Sketcher.Constraint("Equal", 2, 3),
    Sketcher.Constraint("Equal", 3, 4),
    Sketcher.Constraint("Equal", 4, 5),
    Sketcher.Constraint("Equal", 5, 6),
    Sketcher.Constraint("Equal", 6, 7),
    Sketcher.Constraint("Equal", 7, 8),
    Sketcher.Constraint("Equal", 8, 9),
    Sketcher.Constraint("Equal", 9, 10),
    Sketcher.Constraint("Equal", 10, 11),
    Sketcher.Constraint("Equal", 11, 12),
    Sketcher.Constraint("Equal", 12, 13),
    Sketcher.Constraint("Equal", 13, 14),
    Sketcher.Constraint("Equal", 14, 15),
    Sketcher.Constraint("Horizontal", 0, 3, 1, 3),
    Sketcher.Constraint("Horizontal", 8, 3, 9, 3),
    Sketcher.Constraint("Horizontal", 7, 3, 10, 3),
    Sketcher.Constraint("Horizontal", 6, 3, 11, 3),
    Sketcher.Constraint("Horizontal", 5, 3, 12, 3),
    Sketcher.Constraint("Horizontal", 4, 3, 13, 3),
    Sketcher.Constraint("Horizontal", 3, 3, 14, 3),
    Sketcher.Constraint("Horizontal", 2, 3, 15, 3),
    Sketcher.Constraint("Vertical", 4, 3, 5, 3),
    Sketcher.Constraint("Vertical", 3, 3, 6, 3),
    Sketcher.Constraint("Vertical", 2, 3, 7, 3),
    Sketcher.Constraint("Vertical", 0, 3, 8, 3),
    Sketcher.Constraint("Vertical", 1, 3, 9, 3),
    Sketcher.Constraint("Vertical", 12, 3, 13, 3),
    Sketcher.Constraint("Vertical", 11, 3, 14, 3),
    Sketcher.Constraint("Vertical", 10, 3, 15, 3),
    Sketcher.Constraint("Diameter", 0, Q("3 mm")),
    Sketcher.Constraint("DistanceY", -1, 1, 0, 3, Q("106.5 mm")),
    Sketcher.Constraint("DistanceX", -1, 1, 4, 3, Q("106.5 mm")),
    Sketcher.Constraint("DistanceY", -1, 1, 8, 3, Q("3.5 mm")),
    Sketcher.Constraint("DistanceX", -1, 1, 12, 3, Q("3.5 mm")),
    Sketcher.Constraint("DistanceY", 6, 3, 2, 3, Q("72.831998 mm")),
    Sketcher.Constraint("DistanceY", 7, 3, 3, 3, Q("72.831998 mm")),
    Sketcher.Constraint("DistanceX", 10, 3, 6, 3, Q("72.831998 mm")),
    Sketcher.Constraint("DistanceX", 11, 3, 7, 3, Q("72.831998 mm")),
    Sketcher.Constraint("DistanceX", 1, 3, 2, 3, Q("38.86214 mm")),
    Sketcher.Constraint("DistanceX", 2, 3, 3, 3, Q("11.811012 mm")),
    Sketcher.Constraint("DistanceY", 3, 3, 2, 3, Q("11.811012 mm")),
    Sketcher.Constraint("DistanceX", 0, 3, 3, 3, Q("33.969859 mm")),
    Sketcher.Constraint("DistanceY", 4, 3, 2, 3, Q("33.969859 mm")),
    Sketcher.Constraint("DistanceY", 5, 3, 3, 3, Q("38.86214 mm")),
    Sketcher.Constraint("DistanceX", -1, 1, 0, 3, Q("63.351647 mm")),
    Sketcher.Constraint("DistanceY", -1, 1, 2, 3, Q("97.321505 mm")),
])
pocket3 = body.newObject("PartDesign::Pocket", "Pocket002")
pocket3.Profile = sketch4
pocket3.Length = 1

sketch5 = body.newObject("Sketcher::SketchObject", "Sketch004")
sketch5.AttachmentSupport = (doc.getObject("XY_Plane"), [""])
sketch5.MapMode = "FlatFace"
sketch5.addGeometry([
    Part.LineSegment(App.Vector(87.5, 102.4, 0), App.Vector(102.4, 87.5, 0)),
    Part.ArcOfCircle(Part.Circle(App.Vector(103.4, 88.6, 0), App.Vector(0, 0, 1), 1.5), math.radians(-135), math.radians(8)),
    Part.LineSegment(App.Vector(104.9, 88.8, 0), App.Vector(103.2, 101.9, 0)),
    Part.ArcOfCircle(Part.Circle(App.Vector(101.7, 101.7, 0), App.Vector(0, 0, 1), 1.5), math.radians(8), math.radians(82)),
    Part.LineSegment(App.Vector(101.9, 103.2, 0), App.Vector(88.8, 104.9, 0)),
    Part.ArcOfCircle(Part.Circle(App.Vector(88.6, 103.4, 0), App.Vector(0, 0, 1), 1.5), math.radians(82), math.radians(225)),
    Part.LineSegment(App.Vector(102.4, 22.5, 0), App.Vector(87.5, 7.6, 0)),
    Part.ArcOfCircle(Part.Circle(App.Vector(88.6, 6.6, 0), App.Vector(0, 0, 1), 1.5), math.radians(135), math.radians(278)),
    Part.LineSegment(App.Vector(88.8, 5.1, 0), App.Vector(101.9, 6.8, 0)),
    Part.ArcOfCircle(Part.Circle(App.Vector(101.7, 8.3, 0), App.Vector(0, 0, 1), 1.5), math.radians(-82), math.radians(-8)),
    Part.LineSegment(App.Vector(103.2, 8.1, 0), App.Vector(104.9, 21.2, 0)),
    Part.ArcOfCircle(Part.Circle(App.Vector(103.4, 21.4, 0), App.Vector(0, 0, 1), 1.5), math.radians(-8), math.radians(135)),
    Part.LineSegment(App.Vector(22.5, 7.6, 0), App.Vector(7.6, 22.5, 0)),
    Part.ArcOfCircle(Part.Circle(App.Vector(6.6, 21.4, 0), App.Vector(0, 0, 1), 1.5), math.radians(45), math.radians(188)),
    Part.LineSegment(App.Vector(5.1, 21.2, 0), App.Vector(6.8, 8.1, 0)),
    Part.ArcOfCircle(Part.Circle(App.Vector(8.3, 8.3, 0), App.Vector(0, 0, 1), 1.5), math.radians(-172), math.radians(-98)),
    Part.LineSegment(App.Vector(8.1, 6.8, 0), App.Vector(21.2, 5.1, 0)),
    Part.ArcOfCircle(Part.Circle(App.Vector(21.4, 6.6, 0), App.Vector(0, 0, 1), 1.5), math.radians(-98), math.radians(45)),
    Part.LineSegment(App.Vector(7.6, 87.5, 0), App.Vector(22.5, 102.4, 0)),
    Part.ArcOfCircle(Part.Circle(App.Vector(21.4, 103.4, 0), App.Vector(0, 0, 1), 1.5), math.radians(-45), math.radians(98)),
    Part.LineSegment(App.Vector(21.2, 104.9, 0), App.Vector(8.1, 103.2, 0)),
    Part.ArcOfCircle(Part.Circle(App.Vector(8.3, 101.7, 0), App.Vector(0, 0, 1), 1.5), math.radians(98), math.radians(172)),
    Part.LineSegment(App.Vector(6.8, 101.9, 0), App.Vector(5.1, 88.8, 0)),
    Part.ArcOfCircle(Part.Circle(App.Vector(6.6, 88.6, 0), App.Vector(0, 0, 1), 1.5), math.radians(172), math.radians(315)),
], False)
sketch5.addConstraint([
    Sketcher.Constraint("Tangent", 0, 2, 1, 1),
    Sketcher.Constraint("Tangent", 1, 2, 2, 1),
    Sketcher.Constraint("Tangent", 2, 2, 3, 1),
    Sketcher.Constraint("Tangent", 3, 2, 4, 1),
    Sketcher.Constraint("Tangent", 4, 2, 5, 1),
    Sketcher.Constraint("Tangent", 5, 2, 0, 1),
    Sketcher.Constraint("Tangent", 6, 2, 7, 1),
    Sketcher.Constraint("Tangent", 7, 2, 8, 1),
    Sketcher.Constraint("Tangent", 8, 2, 9, 1),
    Sketcher.Constraint("Tangent", 9, 2, 10, 1),
    Sketcher.Constraint("Tangent", 10, 2, 11, 1),
    Sketcher.Constraint("Tangent", 11, 2, 6, 1),
    Sketcher.Constraint("Tangent", 12, 2, 13, 1),
    Sketcher.Constraint("Tangent", 13, 2, 14, 1),
    Sketcher.Constraint("Tangent", 14, 2, 15, 1),
    Sketcher.Constraint("Tangent", 15, 2, 16, 1),
    Sketcher.Constraint("Tangent", 16, 2, 17, 1),
    Sketcher.Constraint("Tangent", 17, 2, 12, 1),
    Sketcher.Constraint("Tangent", 18, 2, 19, 1),
    Sketcher.Constraint("Tangent", 19, 2, 20, 1),
    Sketcher.Constraint("Tangent", 20, 2, 21, 1),
    Sketcher.Constraint("Tangent", 21, 2, 22, 1),
    Sketcher.Constraint("Tangent", 22, 2, 23, 1),
    Sketcher.Constraint("Tangent", 23, 2, 18, 1),
    Sketcher.Constraint("Equal", 1, 3),
    Sketcher.Constraint("Equal", 3, 5),
    Sketcher.Constraint("Equal", 5, 7),
    Sketcher.Constraint("Equal", 7, 9),
    Sketcher.Constraint("Equal", 9, 11),
    Sketcher.Constraint("Equal", 11, 13),
    Sketcher.Constraint("Equal", 13, 15),
    Sketcher.Constraint("Equal", 15, 17),
    Sketcher.Constraint("Equal", 17, 19),
    Sketcher.Constraint("Equal", 19, 21),
    Sketcher.Constraint("Equal", 21, 23),
    Sketcher.Constraint("Perpendicular", 0, 6),
    Sketcher.Constraint("Perpendicular", 2, 8),
    Sketcher.Constraint("Perpendicular", 4, 10),
    Sketcher.Constraint("Perpendicular", 6, 12),
    Sketcher.Constraint("Perpendicular", 8, 14),
    Sketcher.Constraint("Perpendicular", 10, 16),
    Sketcher.Constraint("Perpendicular", 12, 18),
    Sketcher.Constraint("Perpendicular", 14, 20),
    Sketcher.Constraint("Perpendicular", 16, 22),
    Sketcher.Constraint("Horizontal", 11, 3, 13, 3),
    Sketcher.Constraint("Horizontal", 9, 3, 15, 3),
    Sketcher.Constraint("Horizontal", 7, 3, 17, 3),
    Sketcher.Constraint("Horizontal", 5, 3, 19, 3),
    Sketcher.Constraint("Horizontal", 3, 3, 21, 3),
    Sketcher.Constraint("Horizontal", 11, 2, 12, 2),
    Sketcher.Constraint("Vertical", 5, 3, 7, 3),
    Sketcher.Constraint("Vertical", 3, 3, 9, 3),
    Sketcher.Constraint("Vertical", 17, 3, 19, 3),
    Sketcher.Constraint("Radius", 1, Q("1.5 mm")),
    Sketcher.Constraint("Distance", 0, Q("21 mm")),
    Sketcher.Constraint("DistanceX", -1, 1, 1, 2, Q("104.923699 mm")),
    Sketcher.Constraint("DistanceY", -1, 1, 4, 2, Q("104.923699 mm")),
    Sketcher.Constraint("DistanceY", -1, 1, 7, 2, Q("5.076301 mm")),
    Sketcher.Constraint("DistanceX", -1, 1, 13, 2, Q("5.076301 mm")),
    Sketcher.Constraint("DistanceY", 9, 3, 0, 2, Q("79.2193 mm")),
])
pocket4 = body.newObject("PartDesign::Pocket", "Pocket003")
pocket4.Profile = sketch5
pocket4.Length = 1

sketch6 = body.newObject("Sketcher::SketchObject", "Sketch005")
sketch6.AttachmentSupport = (doc.getObject("XY_Plane"), [""])
sketch6.MapMode = "FlatFace"
sketch6.addGeometry([
    Part.Circle(App.Vector(74.5, 104, 0), App.Vector(0, 0, 1), 1.5),
    Part.Circle(App.Vector(35.5, 104, 0), App.Vector(0, 0, 1), 1.5),
    Part.Circle(App.Vector(35.5, 6, 0), App.Vector(0, 0, 1), 1.5),
    Part.Circle(App.Vector(74.5, 6, 0), App.Vector(0, 0, 1), 1.5),
], False)
sketch6.addConstraint([
    Sketcher.Constraint("Equal", 0, 1),
    Sketcher.Constraint("Equal", 1, 2),
    Sketcher.Constraint("Equal", 2, 3),
    Sketcher.Constraint("Horizontal", 0, 3, 1, 3),
    Sketcher.Constraint("Horizontal", 2, 3, 3, 3),
    Sketcher.Constraint("Vertical", 1, 3, 2, 3),
    Sketcher.Constraint("Vertical", 0, 3, 3, 3),
    Sketcher.Constraint("Diameter", 0, Q("3 mm")),
    Sketcher.Constraint("DistanceY", -1, 1, 0, 3, Q("104 mm")),
    Sketcher.Constraint("DistanceY", -1, 1, 2, 3, Q("6 mm")),
    Sketcher.Constraint("DistanceX", 1, 3, 0, 3, Q("39 mm")),
    Sketcher.Constraint("DistanceX", -1, 1, 0, 3, Q("74.5 mm")),
])
pocket5 = body.newObject("PartDesign::Pocket", "Pocket004")
pocket5.Profile = sketch6
pocket5.Length = 1

doc.recompute()
